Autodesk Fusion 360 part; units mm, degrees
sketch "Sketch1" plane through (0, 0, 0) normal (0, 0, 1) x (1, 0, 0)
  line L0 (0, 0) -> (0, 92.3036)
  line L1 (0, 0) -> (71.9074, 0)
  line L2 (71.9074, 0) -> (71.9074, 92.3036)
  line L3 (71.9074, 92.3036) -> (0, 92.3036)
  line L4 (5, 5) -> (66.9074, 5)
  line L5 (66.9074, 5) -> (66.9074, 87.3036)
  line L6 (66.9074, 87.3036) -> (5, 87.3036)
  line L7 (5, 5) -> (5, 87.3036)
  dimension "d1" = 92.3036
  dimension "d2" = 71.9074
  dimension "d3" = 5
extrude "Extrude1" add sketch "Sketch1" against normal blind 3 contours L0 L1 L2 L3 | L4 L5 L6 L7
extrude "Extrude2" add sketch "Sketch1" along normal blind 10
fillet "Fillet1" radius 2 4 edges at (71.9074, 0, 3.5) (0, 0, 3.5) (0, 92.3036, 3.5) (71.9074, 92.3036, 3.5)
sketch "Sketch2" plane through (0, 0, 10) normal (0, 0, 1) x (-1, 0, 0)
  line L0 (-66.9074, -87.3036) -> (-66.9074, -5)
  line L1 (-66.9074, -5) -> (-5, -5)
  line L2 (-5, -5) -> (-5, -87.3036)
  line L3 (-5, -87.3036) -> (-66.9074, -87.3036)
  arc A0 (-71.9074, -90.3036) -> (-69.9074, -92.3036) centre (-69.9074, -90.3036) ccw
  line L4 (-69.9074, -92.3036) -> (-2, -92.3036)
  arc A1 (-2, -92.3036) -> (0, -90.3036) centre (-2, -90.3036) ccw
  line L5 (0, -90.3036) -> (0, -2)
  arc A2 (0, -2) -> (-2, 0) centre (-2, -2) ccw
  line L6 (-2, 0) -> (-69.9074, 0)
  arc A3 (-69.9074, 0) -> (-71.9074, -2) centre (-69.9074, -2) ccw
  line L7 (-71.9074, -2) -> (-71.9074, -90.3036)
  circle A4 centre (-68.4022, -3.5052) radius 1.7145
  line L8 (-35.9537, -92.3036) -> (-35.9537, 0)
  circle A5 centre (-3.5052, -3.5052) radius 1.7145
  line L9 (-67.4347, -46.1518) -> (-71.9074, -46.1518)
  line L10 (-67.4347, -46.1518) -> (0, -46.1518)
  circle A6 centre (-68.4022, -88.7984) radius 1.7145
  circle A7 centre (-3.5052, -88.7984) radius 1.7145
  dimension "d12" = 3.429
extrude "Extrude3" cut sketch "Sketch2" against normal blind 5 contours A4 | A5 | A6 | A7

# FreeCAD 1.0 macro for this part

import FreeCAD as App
import Part
import Sketcher
Q = App.Units.Quantity


def edges_at(feature, points):
    """Names of the edges that pass closest to the given points."""
    edges = feature.Shape.Edges
    near = lambda p: min(range(len(edges)), key=lambda i: edges[i].distToShape(Part.Vertex(*p))[0])
    return sorted({f"Edge{near(p) + 1}" for p in points})

doc = App.newDocument("Part")
body = doc.addObject("PartDesign::Body", "Body")

sketch1 = body.newObject("Sketcher::SketchObject", "Sketch")
sketch1.AttachmentSupport = (doc.getObject("XY_Plane"), [""])
sketch1.MapMode = "FlatFace"
sketch1.addGeometry([
    Part.LineSegment(App.Vector(0, 92, 0), App.Vector(0, 0, 0)),
    Part.LineSegment(App.Vector(0, 0, 0), App.Vector(72, 0, 0)),
    Part.LineSegment(App.Vector(72, 0, 0), App.Vector(72, 92, 0)),
    Part.LineSegment(App.Vector(72, 92, 0), App.Vector(0, 92, 0)),
], False)
sketch1.addConstraint([
    Sketcher.Constraint("Coincident", 0, 2, 1, 1),
    Sketcher.Constraint("Coincident", 1, 2, 2, 1),
    Sketcher.Constraint("Coincident", 2, 2, 3, 1),
    Sketcher.Constraint("Coincident", 3, 2, 0, 1),
    Sketcher.Constraint("Vertical", 0),
    Sketcher.Constraint("Horizontal", 1),
    Sketcher.Constraint("Vertical", 2),
    Sketcher.Constraint("Horizontal", 3),
    Sketcher.Constraint("Coincident", 0, 2, -1, 1),
    Sketcher.Constraint("DistanceX", 1, 1, 1, 2, Q("2.831 in")),
    Sketcher.Constraint("DistanceY", 0, 2, 0, 1, Q("3.634 in")),
])
pad1 = body.newObject("PartDesign::Pad", "Pad")
pad1.Profile = sketch1
pad1.Length = Q("0.1181102 in")
pad1.Reversed = True

sketch2 = body.newObject("Sketcher::SketchObject", "Sketch001")
sketch2.AttachmentSupport = (doc.getObject("XY_Plane"), [""])
sketch2.MapMode = "FlatFace"
sketch2.addGeometry([
    Part.LineSegment(App.Vector(0, 92, 0), App.Vector(0, 0, 0)),
    Part.LineSegment(App.Vector(0, 0, 0), App.Vector(72, 0, 0)),
    Part.LineSegment(App.Vector(72, 0, 0), App.Vector(72, 92, 0)),
    Part.LineSegment(App.Vector(72, 92, 0), App.Vector(0, 92, 0)),
    Part.LineSegment(App.Vector(67, 5, 0), App.Vector(5, 5, 0)),
    Part.LineSegment(App.Vector(5, 5, 0), App.Vector(5, 87, 0)),
    Part.LineSegment(App.Vector(5, 87, 0), App.Vector(67, 87, 0)),
    Part.LineSegment(App.Vector(67, 87, 0), App.Vector(67, 5, 0)),
], False)
sketch2.addConstraint([
    Sketcher.Constraint("Coincident", 0, 2, 1, 1),
    Sketcher.Constraint("Coincident", 1, 2, 2, 1),
    Sketcher.Constraint("Coincident", 2, 2, 3, 1),
    Sketcher.Constraint("Coincident", 3, 2, 0, 1),
    Sketcher.Constraint("Coincident", 4, 2, 5, 1),
    Sketcher.Constraint("Coincident", 5, 2, 6, 1),
    Sketcher.Constraint("Coincident", 6, 2, 7, 1),
    Sketcher.Constraint("Coincident", 7, 2, 4, 1),
    Sketcher.Constraint("Vertical", 0),
    Sketcher.Constraint("Horizontal", 1),
    Sketcher.Constraint("Vertical", 2),
    Sketcher.Constraint("Horizontal", 3),
    Sketcher.Constraint("Horizontal", 4),
    Sketcher.Constraint("Vertical", 5),
    Sketcher.Constraint("Horizontal", 6),
    Sketcher.Constraint("Vertical", 7),
    Sketcher.Constraint("Coincident", 0, 2, -1, 1),
    Sketcher.Constraint("DistanceX", 1, 1, 1, 2, Q("2.831 in")),
    Sketcher.Constraint("DistanceY", 0, 2, 0, 1, Q("3.634 in")),
    Sketcher.Constraint("DistanceX", -1, 1, 4, 2, Q("5 mm")),
    Sketcher.Constraint("DistanceY", -1, 1, 4, 2, Q("5 mm")),
    Sketcher.Constraint("DistanceY", 5, 2, 3, 2, Q("5 mm")),
    Sketcher.Constraint("DistanceX", 6, 2, 2, 2, Q("5 mm")),
])
pad2 = body.newObject("PartDesign::Pad", "Pad001")
pad2.Profile = sketch2
pad2.Length = Q("0.3937008 in")
doc.recompute()

fillet = body.newObject("PartDesign::Fillet", "Fillet")
fillet.Base = (pad2, edges_at(pad2, [
    (71.907, 0, 3.5),
    (0, 0, 3.5),
    (0, 92.304, 3.5),
    (71.907, 92.304, 3.5),
]))
fillet.Radius = 2

sketch3 = body.newObject("Sketcher::SketchObject", "Sketch002")
sketch3.AttachmentSupport = (doc.getObject("XY_Plane"), [""])
sketch3.MapMode = "FlatFace"
sketch3.AttachmentOffset = App.Placement(App.Vector(0, 0, 0.3937008 * 25.4), App.Rotation())
sketch3.addGeometry([
    Part.Circle(App.Vector(68.4, 3.5, 0), App.Vector(0, 0, 1), 1.7),
    Part.Circle(App.Vector(3.5, 3.5, 0), App.Vector(0, 0, 1), 1.7),
    Part.Circle(App.Vector(68.4, 88.8, 0), App.Vector(0, 0, 1), 1.7),
    Part.Circle(App.Vector(3.5, 88.8, 0), App.Vector(0, 0, 1), 1.7),
], False)
sketch3.addConstraint([
    Sketcher.Constraint("Equal", 0, 1),
    Sketcher.Constraint("Equal", 1, 2),
    Sketcher.Constraint("Equal", 2, 3),
    Sketcher.Constraint("Horizontal", 0, 3, 1, 3),
    Sketcher.Constraint("Horizontal", 2, 3, 3, 3),
    Sketcher.Constraint("Vertical", 0, 3, 2, 3),
    Sketcher.Constraint("Vertical", 1, 3, 3, 3),
    Sketcher.Constraint("Diameter", 0, Q("0.135 in")),
    Sketcher.Constraint("DistanceX", -1, 1, 0, 3, Q("2.693 in")),
    Sketcher.Constraint("DistanceY", -1, 1, 0, 3, Q("0.138 in")),
    Sketcher.Constraint("DistanceX", -1, 1, 1, 3, Q("0.138 in")),
    Sketcher.Constraint("DistanceY", -1, 1, 2, 3, Q("3.496 in")),
])
pocket1 = body.newObject("PartDesign::Pocket", "Pocket")
pocket1.Profile = sketch3
pocket1.Length = 5

doc.recompute()
